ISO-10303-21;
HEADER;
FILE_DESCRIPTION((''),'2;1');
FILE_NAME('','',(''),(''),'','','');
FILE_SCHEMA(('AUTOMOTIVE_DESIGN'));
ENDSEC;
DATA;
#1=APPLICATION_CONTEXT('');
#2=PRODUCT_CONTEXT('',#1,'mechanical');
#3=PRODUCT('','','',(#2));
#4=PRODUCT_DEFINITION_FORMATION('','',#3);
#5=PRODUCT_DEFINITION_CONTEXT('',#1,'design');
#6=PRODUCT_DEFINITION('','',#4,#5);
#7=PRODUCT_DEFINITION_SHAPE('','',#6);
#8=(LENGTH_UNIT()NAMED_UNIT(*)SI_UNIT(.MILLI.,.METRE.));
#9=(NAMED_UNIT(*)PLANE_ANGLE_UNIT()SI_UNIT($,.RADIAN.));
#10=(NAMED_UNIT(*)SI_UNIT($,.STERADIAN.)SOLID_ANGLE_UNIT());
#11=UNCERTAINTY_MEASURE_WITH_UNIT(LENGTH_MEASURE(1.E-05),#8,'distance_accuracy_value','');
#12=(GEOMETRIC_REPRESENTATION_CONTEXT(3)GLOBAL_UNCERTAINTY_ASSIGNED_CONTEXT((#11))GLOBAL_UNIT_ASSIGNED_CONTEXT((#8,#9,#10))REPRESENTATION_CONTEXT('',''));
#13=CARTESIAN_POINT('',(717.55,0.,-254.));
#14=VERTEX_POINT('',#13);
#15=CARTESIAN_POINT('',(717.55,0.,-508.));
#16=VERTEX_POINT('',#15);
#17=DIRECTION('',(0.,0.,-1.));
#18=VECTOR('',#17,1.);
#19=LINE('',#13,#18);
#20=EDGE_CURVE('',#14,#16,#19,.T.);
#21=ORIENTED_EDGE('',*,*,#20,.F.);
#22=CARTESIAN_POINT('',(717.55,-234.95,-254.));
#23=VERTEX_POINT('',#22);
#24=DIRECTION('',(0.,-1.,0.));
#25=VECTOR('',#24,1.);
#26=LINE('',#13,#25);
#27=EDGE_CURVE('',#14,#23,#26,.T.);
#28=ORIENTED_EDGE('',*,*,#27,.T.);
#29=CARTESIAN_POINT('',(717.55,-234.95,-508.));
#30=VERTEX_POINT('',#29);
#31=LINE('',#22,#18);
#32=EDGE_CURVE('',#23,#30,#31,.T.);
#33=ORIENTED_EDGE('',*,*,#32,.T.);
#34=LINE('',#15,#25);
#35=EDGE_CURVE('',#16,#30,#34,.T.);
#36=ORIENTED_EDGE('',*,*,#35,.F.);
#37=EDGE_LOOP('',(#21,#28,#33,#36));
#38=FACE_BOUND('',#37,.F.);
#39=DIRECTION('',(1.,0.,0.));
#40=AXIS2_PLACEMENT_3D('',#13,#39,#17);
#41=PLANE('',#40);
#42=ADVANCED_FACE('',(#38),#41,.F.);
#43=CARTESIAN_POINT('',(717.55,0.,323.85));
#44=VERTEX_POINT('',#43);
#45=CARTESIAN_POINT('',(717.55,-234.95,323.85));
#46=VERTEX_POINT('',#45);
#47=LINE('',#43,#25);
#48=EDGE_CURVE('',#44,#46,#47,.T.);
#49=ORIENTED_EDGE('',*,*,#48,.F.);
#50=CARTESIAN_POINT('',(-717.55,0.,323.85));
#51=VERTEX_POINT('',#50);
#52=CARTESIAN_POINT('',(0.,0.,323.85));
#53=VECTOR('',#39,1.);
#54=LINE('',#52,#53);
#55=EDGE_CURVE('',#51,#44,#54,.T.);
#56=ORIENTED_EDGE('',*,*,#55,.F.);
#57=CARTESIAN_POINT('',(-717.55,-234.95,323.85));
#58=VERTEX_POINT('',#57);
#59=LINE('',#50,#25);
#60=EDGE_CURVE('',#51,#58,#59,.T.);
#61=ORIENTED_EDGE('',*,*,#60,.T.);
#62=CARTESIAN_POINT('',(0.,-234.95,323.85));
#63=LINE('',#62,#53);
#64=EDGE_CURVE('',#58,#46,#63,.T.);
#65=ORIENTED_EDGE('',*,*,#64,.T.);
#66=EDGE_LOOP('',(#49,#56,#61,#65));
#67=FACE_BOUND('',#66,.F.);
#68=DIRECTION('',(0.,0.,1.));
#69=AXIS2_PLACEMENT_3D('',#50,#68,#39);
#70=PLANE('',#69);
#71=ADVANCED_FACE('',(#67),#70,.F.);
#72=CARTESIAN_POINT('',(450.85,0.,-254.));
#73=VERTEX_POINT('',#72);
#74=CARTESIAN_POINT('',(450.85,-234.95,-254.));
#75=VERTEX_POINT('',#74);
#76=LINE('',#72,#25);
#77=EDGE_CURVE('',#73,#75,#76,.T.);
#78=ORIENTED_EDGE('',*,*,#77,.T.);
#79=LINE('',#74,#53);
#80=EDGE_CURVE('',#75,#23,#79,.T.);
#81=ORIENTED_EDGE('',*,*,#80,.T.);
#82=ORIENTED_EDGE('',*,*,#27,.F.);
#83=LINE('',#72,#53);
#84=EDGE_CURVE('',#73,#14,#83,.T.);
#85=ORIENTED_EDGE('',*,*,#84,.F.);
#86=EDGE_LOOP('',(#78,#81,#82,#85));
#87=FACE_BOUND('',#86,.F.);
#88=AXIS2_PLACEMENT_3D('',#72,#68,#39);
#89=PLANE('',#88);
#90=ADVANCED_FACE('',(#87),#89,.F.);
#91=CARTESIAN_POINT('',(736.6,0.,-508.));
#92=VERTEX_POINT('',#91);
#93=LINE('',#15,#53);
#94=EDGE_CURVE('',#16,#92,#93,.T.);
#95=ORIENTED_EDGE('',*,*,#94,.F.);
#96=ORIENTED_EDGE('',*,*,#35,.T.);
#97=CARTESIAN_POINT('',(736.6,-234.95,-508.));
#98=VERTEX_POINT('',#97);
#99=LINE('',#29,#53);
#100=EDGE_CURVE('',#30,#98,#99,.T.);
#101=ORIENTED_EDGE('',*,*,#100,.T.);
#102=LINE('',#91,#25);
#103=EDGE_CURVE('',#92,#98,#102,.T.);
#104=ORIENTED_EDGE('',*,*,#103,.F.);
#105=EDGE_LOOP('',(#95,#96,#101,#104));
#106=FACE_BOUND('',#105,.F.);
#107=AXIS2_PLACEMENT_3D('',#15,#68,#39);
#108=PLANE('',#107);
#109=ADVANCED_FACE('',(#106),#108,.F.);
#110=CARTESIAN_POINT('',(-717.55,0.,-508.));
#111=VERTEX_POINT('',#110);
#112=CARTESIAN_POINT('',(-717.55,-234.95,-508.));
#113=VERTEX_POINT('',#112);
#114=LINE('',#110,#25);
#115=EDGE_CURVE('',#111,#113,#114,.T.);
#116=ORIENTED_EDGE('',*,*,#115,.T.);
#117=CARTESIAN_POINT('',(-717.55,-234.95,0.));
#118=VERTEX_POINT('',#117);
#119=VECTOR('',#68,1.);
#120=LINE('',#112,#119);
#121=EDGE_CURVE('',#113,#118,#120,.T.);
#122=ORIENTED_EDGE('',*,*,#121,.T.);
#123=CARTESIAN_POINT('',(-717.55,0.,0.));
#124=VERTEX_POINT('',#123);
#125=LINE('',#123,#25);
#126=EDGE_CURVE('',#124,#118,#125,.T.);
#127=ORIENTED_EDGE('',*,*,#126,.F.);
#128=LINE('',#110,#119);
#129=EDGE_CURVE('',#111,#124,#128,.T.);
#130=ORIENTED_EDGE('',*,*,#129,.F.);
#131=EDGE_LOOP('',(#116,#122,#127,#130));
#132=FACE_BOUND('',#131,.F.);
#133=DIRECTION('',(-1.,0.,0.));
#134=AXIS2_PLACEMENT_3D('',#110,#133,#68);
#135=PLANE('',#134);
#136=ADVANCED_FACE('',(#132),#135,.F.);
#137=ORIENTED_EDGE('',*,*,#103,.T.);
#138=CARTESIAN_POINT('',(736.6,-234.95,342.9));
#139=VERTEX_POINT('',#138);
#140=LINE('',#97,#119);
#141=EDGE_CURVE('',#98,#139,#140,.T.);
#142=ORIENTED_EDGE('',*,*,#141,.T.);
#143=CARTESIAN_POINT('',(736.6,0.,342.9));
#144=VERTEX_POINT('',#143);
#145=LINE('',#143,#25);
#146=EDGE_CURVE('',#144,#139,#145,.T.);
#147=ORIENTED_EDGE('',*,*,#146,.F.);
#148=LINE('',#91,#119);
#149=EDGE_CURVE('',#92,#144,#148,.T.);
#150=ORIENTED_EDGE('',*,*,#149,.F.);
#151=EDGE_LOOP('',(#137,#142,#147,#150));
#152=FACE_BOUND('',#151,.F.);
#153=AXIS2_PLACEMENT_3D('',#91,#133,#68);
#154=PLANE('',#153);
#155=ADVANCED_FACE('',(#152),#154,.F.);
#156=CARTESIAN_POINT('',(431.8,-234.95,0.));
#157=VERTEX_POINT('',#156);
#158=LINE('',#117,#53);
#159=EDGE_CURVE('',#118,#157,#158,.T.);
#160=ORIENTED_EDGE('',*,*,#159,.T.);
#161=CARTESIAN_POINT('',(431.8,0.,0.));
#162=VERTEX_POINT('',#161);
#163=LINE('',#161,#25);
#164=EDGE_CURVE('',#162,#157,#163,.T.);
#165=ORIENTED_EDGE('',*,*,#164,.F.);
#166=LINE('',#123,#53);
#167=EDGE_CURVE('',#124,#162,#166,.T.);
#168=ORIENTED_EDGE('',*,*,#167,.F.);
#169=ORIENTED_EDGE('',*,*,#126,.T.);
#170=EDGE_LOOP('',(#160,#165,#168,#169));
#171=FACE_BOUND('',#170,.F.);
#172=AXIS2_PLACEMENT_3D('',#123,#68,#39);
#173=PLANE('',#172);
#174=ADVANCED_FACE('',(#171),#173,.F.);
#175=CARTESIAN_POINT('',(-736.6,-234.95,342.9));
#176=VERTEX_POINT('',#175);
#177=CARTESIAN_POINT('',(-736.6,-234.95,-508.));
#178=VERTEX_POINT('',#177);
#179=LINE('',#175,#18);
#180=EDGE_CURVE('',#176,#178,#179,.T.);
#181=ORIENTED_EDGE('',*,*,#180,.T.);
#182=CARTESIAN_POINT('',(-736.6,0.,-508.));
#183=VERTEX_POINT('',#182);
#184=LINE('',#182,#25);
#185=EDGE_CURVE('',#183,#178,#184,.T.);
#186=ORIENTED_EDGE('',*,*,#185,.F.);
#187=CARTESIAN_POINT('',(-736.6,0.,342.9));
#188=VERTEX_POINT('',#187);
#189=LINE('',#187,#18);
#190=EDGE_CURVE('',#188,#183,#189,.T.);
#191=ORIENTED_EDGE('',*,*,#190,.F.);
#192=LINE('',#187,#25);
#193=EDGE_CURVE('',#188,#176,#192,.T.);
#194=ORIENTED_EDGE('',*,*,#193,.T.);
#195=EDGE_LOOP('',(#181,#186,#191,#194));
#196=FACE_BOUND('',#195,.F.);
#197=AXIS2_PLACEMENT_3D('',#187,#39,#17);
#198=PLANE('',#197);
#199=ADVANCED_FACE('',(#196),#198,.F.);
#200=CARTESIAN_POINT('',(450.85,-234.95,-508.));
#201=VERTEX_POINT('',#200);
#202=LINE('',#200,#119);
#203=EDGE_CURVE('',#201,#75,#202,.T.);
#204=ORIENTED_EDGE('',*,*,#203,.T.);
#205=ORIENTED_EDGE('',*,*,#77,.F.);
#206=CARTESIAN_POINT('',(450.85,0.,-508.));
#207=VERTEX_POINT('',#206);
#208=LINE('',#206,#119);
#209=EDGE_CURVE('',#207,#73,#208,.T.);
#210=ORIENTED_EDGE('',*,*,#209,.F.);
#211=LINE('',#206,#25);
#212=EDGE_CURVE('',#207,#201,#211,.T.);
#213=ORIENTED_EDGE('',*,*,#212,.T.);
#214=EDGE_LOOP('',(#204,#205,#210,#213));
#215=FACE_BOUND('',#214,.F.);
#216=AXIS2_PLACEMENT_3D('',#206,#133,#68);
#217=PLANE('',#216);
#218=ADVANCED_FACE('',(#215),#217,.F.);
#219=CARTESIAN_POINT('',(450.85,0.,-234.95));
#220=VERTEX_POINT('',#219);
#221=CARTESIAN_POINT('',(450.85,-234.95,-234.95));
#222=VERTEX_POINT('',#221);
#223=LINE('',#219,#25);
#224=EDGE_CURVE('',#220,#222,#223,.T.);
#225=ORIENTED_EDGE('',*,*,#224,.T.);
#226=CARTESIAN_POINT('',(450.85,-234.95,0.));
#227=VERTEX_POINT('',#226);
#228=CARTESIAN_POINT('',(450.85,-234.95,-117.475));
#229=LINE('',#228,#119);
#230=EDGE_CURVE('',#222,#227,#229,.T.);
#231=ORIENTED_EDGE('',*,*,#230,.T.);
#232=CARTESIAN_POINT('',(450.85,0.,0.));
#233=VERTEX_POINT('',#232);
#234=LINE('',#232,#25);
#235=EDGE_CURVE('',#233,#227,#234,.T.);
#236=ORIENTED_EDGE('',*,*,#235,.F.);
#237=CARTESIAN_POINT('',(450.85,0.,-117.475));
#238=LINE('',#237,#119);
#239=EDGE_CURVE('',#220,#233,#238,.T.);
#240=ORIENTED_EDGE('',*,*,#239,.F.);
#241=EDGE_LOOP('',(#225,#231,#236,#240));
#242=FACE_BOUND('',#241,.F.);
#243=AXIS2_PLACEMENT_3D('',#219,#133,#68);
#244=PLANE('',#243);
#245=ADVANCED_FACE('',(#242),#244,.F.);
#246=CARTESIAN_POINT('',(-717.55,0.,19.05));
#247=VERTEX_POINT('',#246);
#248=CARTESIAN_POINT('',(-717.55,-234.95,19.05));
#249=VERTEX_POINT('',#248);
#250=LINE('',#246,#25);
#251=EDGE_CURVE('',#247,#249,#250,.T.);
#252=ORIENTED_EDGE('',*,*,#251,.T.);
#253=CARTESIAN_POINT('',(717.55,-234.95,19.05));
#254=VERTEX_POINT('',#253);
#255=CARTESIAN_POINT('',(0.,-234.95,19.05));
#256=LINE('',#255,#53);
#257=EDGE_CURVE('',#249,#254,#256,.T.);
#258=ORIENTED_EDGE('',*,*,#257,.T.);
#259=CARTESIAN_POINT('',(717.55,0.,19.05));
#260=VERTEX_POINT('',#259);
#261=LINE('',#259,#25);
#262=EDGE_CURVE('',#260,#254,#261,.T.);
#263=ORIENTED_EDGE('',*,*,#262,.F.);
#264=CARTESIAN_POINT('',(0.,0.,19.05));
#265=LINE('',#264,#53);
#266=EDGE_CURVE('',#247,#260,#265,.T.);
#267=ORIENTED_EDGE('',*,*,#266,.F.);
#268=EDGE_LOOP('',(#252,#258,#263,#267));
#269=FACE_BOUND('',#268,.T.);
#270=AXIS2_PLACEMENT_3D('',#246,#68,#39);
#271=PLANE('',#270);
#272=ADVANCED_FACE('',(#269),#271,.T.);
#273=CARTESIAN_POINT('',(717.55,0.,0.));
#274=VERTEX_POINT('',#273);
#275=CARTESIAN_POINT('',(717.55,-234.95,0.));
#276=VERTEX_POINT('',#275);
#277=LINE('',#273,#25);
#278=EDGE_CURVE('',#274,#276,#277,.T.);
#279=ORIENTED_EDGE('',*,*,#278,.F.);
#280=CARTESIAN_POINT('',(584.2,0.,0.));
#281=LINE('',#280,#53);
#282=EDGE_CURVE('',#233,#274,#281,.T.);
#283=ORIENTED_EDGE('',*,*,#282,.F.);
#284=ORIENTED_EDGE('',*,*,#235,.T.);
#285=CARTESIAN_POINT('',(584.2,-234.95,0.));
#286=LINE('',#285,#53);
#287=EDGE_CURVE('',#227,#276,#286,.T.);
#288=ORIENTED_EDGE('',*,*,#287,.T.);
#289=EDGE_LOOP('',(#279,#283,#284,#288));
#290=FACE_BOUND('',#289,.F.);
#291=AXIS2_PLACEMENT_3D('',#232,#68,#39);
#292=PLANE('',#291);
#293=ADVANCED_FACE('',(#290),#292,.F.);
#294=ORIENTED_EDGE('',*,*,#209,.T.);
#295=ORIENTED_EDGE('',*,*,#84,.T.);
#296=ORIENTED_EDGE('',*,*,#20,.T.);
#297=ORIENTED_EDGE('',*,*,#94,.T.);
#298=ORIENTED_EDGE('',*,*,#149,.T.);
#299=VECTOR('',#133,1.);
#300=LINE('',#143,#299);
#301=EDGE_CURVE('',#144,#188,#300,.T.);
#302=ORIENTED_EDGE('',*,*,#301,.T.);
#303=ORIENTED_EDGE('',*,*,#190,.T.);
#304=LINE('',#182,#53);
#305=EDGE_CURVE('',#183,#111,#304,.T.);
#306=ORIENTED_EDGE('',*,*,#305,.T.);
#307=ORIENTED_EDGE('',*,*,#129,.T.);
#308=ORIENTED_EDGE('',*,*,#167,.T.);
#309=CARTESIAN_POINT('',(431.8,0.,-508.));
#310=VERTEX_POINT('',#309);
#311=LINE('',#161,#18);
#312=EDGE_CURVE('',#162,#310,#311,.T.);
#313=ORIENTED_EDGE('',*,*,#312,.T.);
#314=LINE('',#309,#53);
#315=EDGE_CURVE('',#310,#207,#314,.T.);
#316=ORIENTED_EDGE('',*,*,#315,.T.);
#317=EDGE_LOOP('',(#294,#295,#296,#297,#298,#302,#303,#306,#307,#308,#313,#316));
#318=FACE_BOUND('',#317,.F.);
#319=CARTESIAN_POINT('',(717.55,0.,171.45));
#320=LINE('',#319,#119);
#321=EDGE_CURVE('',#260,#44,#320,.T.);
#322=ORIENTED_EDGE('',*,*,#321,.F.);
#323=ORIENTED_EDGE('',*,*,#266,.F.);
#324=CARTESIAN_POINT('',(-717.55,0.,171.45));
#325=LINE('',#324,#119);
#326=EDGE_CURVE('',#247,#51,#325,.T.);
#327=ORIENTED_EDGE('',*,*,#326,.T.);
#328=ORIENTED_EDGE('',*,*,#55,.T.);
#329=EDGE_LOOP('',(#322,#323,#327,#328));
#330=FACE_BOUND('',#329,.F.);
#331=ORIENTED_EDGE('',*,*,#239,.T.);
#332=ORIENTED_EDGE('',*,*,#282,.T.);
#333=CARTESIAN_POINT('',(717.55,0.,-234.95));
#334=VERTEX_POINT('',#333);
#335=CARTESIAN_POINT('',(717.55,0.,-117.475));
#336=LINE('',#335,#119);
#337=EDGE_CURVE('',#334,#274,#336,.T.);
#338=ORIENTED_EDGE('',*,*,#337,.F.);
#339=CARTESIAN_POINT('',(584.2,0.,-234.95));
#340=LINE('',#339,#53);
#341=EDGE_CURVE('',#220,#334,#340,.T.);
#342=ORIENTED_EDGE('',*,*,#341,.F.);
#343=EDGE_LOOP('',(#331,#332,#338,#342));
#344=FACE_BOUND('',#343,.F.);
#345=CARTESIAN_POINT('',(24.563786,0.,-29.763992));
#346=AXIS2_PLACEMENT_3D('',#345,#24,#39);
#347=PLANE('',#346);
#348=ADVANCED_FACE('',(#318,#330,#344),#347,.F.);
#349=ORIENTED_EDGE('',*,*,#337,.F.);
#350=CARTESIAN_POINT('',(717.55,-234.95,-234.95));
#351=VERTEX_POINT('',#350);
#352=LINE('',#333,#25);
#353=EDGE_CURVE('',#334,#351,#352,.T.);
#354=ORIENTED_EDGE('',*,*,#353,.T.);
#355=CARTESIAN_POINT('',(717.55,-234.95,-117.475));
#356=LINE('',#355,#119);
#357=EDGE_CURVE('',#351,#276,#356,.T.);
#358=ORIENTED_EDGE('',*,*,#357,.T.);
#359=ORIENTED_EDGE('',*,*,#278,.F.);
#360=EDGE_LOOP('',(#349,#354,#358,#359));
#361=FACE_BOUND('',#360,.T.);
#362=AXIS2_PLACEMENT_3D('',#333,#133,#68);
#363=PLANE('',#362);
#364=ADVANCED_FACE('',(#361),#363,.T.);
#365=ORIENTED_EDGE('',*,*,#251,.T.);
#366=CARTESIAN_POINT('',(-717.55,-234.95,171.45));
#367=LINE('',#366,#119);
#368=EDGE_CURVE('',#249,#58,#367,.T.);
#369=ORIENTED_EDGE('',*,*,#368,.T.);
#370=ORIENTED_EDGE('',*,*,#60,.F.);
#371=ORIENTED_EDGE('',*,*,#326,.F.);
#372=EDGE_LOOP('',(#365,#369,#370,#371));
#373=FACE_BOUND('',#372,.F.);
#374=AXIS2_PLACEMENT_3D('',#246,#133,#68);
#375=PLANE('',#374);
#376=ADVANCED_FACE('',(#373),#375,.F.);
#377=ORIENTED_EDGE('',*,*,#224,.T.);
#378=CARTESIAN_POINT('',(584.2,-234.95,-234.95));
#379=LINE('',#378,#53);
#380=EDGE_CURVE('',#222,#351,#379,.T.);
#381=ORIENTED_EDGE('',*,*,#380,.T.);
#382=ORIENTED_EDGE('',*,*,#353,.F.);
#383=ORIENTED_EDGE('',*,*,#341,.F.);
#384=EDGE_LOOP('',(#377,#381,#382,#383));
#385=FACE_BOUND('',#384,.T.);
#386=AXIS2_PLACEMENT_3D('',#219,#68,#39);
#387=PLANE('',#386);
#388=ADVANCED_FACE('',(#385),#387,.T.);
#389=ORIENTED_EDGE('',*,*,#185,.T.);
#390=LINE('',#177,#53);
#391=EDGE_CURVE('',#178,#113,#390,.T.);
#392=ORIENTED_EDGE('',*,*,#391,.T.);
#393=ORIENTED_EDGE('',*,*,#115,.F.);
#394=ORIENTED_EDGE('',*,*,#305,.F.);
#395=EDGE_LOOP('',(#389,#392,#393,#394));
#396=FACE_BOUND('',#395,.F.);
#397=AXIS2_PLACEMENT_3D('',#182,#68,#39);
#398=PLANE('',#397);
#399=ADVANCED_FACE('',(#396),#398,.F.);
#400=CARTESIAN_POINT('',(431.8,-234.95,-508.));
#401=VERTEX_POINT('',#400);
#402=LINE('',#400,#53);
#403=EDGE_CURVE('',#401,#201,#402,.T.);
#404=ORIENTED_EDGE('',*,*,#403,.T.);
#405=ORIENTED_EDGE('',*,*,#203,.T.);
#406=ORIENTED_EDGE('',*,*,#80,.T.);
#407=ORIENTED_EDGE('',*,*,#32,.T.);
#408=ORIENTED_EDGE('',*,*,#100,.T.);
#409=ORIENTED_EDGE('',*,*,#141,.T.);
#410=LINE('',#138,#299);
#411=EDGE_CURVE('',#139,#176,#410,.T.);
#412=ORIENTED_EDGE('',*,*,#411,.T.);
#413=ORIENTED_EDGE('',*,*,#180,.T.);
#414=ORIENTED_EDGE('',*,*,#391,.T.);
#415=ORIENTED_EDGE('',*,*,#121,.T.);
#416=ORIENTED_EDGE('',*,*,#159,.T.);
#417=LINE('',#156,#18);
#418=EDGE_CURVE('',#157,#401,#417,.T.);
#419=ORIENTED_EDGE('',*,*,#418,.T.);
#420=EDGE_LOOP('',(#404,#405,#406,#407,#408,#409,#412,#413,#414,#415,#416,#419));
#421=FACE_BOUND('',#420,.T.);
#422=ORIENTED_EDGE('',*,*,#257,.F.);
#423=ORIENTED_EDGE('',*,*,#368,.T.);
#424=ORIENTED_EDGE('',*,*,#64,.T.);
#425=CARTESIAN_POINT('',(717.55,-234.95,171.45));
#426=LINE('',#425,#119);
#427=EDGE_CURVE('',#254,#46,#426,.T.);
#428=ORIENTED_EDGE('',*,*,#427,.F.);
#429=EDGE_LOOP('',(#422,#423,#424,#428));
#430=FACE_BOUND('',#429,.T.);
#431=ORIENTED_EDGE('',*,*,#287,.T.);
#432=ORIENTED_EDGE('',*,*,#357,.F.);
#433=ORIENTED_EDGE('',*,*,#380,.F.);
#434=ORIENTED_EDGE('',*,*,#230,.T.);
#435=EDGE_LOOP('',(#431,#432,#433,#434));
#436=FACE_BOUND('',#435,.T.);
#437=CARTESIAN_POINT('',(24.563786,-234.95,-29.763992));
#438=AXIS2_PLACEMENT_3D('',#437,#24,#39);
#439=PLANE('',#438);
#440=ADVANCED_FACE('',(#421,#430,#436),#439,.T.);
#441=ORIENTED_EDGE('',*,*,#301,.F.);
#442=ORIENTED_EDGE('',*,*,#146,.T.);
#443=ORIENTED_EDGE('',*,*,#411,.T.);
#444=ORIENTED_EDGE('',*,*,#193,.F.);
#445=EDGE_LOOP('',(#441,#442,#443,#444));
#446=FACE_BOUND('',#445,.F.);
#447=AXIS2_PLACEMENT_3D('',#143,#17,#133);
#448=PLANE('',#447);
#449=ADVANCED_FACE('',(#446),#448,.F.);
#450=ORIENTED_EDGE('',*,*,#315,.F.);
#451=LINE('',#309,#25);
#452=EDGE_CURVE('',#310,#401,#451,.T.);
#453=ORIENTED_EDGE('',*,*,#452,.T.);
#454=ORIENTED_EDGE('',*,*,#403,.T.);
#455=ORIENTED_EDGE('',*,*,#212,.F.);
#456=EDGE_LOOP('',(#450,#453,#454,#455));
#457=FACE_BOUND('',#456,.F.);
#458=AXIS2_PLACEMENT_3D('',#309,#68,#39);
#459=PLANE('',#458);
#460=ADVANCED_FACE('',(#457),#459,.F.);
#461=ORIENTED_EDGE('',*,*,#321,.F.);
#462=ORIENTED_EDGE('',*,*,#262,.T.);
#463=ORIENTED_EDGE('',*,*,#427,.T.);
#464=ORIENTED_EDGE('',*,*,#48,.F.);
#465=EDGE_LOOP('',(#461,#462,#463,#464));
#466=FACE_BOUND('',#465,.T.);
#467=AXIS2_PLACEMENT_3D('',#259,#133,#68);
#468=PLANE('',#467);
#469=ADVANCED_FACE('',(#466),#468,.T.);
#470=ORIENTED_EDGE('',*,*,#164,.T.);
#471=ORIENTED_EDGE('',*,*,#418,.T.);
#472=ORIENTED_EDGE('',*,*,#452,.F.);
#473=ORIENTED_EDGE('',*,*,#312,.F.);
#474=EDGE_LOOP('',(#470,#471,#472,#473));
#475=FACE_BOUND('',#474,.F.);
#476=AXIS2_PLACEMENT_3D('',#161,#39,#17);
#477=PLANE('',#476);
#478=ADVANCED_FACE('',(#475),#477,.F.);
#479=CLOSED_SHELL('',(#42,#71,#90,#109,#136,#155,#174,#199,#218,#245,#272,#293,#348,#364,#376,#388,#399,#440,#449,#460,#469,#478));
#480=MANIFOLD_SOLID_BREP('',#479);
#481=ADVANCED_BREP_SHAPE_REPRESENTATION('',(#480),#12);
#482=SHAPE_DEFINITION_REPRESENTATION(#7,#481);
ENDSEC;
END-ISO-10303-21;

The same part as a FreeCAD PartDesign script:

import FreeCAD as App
import Part
import Sketcher

V = App.Vector
Q = App.Units.Quantity


def add_polygon(sketch, points):
    """Adds a closed chain of lines whose ends are joined by coincident constraints."""
    first, n = sketch.GeometryCount, len(points)
    for a, b in zip(points, points[1:] + points[:1]):
        sketch.addGeometry(Part.LineSegment(App.Vector(*a, 0), App.Vector(*b, 0)), False)
    for i in range(n):
        sketch.addConstraint(Sketcher.Constraint("Coincident", first + i, 2, first + (i + 1) % n, 1))

doc = App.newDocument("Part")
body = doc.addObject("PartDesign::Body", "Body")

# Sketch on XZ plane
sketch1 = body.newObject("Sketcher::SketchObject", "Sketch")
sketch1.AttachmentSupport = (doc.getObject("XZ_Plane"), [""])
sketch1.MapMode = "FlatFace"
add_polygon(sketch1, [(736.6, 342.9), (-736.6, 342.9), (-736.6, -508), (-717.55, -508), (-717.55, 0), (431.8, 0), (431.8, -508), (450.85, -508), (450.85, -254), (717.55, -254), (717.55, -508), (736.6, -508)])  # lines 0-11
add_polygon(sketch1, [(717.55, -234.95), (450.85, -234.95), (450.85, 0), (717.55, 0)])  # lines 12-15
add_polygon(sketch1, [(717.55, 19.05), (-717.55, 19.05), (-717.55, 323.85), (717.55, 323.85)])  # lines 16-19
sketch1.addConstraint(Sketcher.Constraint("Horizontal", 0))
sketch1.addConstraint(Sketcher.Constraint("Vertical", 1))
sketch1.addConstraint(Sketcher.Constraint("Horizontal", 2))
sketch1.addConstraint(Sketcher.Constraint("Vertical", 3))
sketch1.addConstraint(Sketcher.Constraint("Horizontal", 4))
sketch1.addConstraint(Sketcher.Constraint("Vertical", 5))
sketch1.addConstraint(Sketcher.Constraint("Horizontal", 6))
sketch1.addConstraint(Sketcher.Constraint("Vertical", 7))
sketch1.addConstraint(Sketcher.Constraint("Horizontal", 8))
sketch1.addConstraint(Sketcher.Constraint("Vertical", 9))
sketch1.addConstraint(Sketcher.Constraint("Horizontal", 10))
sketch1.addConstraint(Sketcher.Constraint("Vertical", 11))
sketch1.addConstraint(Sketcher.Constraint("Horizontal", 12))
sketch1.addConstraint(Sketcher.Constraint("Vertical", 13))
sketch1.addConstraint(Sketcher.Constraint("Horizontal", 14))
sketch1.addConstraint(Sketcher.Constraint("Vertical", 15))
sketch1.addConstraint(Sketcher.Constraint("Horizontal", 16))
sketch1.addConstraint(Sketcher.Constraint("Vertical", 17))
sketch1.addConstraint(Sketcher.Constraint("Horizontal", 18))
sketch1.addConstraint(Sketcher.Constraint("Vertical", 19))
sketch1.addConstraint(Sketcher.Constraint("Symmetric", 3, 2, 14, 2, -1, 1))
sketch1.addConstraint(Sketcher.Constraint("Symmetric", 2, 2, 9, 2, -2))
sketch1.addConstraint(Sketcher.Constraint("PointOnObject", 3, 2, -1))
sketch1.addConstraint(Sketcher.Constraint("Horizontal", 2, 2, 5, 2))
sketch1.addConstraint(Sketcher.Constraint("Vertical", 7, 2, 12, 2))
sketch1.addConstraint(Sketcher.Constraint("Vertical", 3, 2, 16, 2))
sketch1.addConstraint(Sketcher.Constraint("Vertical", 15, 2, 18, 2))
sketch1.addConstraint(Sketcher.Constraint("Equal", 2, 6))
sketch1.addConstraint(Sketcher.Constraint("Equal", 6, 10))
sketch1.addConstraint(Sketcher.Constraint("DistanceX", 0, 2, 0, 1, Q("58 in")))
sketch1.addConstraint(Sketcher.Constraint("DistanceY", 3, 1, 3, 2, Q("20 in")))
sketch1.addConstraint(Sketcher.Constraint("DistanceY", 7, 1, 7, 2, Q("10 in")))
sketch1.addConstraint(Sketcher.Constraint("DistanceY", 17, 1, 17, 2, Q("12 in")))
sketch1.addConstraint(Sketcher.Constraint("DistanceX", 8, 1, 8, 2, Q("10.5 in")))
sketch1.addConstraint(Sketcher.Constraint("DistanceX", 16, 2, 16, 1, Q("56.5 in")))
sketch1.addConstraint(Sketcher.Constraint("DistanceY", 1, 2, 1, 1, Q("33.5 in")))
sketch1.addConstraint(Sketcher.Constraint("DistanceY", 15, 2, 18, 2, Q("22 in")))
sketch1.addConstraint(Sketcher.Constraint("DistanceY", 13, 1, 13, 2, Q("9.25 in")))
pad1 = body.newObject("PartDesign::Pad", "Pad")
pad1.Profile = sketch1
pad1.Length = Q("9.25 in")

doc.recompute()
